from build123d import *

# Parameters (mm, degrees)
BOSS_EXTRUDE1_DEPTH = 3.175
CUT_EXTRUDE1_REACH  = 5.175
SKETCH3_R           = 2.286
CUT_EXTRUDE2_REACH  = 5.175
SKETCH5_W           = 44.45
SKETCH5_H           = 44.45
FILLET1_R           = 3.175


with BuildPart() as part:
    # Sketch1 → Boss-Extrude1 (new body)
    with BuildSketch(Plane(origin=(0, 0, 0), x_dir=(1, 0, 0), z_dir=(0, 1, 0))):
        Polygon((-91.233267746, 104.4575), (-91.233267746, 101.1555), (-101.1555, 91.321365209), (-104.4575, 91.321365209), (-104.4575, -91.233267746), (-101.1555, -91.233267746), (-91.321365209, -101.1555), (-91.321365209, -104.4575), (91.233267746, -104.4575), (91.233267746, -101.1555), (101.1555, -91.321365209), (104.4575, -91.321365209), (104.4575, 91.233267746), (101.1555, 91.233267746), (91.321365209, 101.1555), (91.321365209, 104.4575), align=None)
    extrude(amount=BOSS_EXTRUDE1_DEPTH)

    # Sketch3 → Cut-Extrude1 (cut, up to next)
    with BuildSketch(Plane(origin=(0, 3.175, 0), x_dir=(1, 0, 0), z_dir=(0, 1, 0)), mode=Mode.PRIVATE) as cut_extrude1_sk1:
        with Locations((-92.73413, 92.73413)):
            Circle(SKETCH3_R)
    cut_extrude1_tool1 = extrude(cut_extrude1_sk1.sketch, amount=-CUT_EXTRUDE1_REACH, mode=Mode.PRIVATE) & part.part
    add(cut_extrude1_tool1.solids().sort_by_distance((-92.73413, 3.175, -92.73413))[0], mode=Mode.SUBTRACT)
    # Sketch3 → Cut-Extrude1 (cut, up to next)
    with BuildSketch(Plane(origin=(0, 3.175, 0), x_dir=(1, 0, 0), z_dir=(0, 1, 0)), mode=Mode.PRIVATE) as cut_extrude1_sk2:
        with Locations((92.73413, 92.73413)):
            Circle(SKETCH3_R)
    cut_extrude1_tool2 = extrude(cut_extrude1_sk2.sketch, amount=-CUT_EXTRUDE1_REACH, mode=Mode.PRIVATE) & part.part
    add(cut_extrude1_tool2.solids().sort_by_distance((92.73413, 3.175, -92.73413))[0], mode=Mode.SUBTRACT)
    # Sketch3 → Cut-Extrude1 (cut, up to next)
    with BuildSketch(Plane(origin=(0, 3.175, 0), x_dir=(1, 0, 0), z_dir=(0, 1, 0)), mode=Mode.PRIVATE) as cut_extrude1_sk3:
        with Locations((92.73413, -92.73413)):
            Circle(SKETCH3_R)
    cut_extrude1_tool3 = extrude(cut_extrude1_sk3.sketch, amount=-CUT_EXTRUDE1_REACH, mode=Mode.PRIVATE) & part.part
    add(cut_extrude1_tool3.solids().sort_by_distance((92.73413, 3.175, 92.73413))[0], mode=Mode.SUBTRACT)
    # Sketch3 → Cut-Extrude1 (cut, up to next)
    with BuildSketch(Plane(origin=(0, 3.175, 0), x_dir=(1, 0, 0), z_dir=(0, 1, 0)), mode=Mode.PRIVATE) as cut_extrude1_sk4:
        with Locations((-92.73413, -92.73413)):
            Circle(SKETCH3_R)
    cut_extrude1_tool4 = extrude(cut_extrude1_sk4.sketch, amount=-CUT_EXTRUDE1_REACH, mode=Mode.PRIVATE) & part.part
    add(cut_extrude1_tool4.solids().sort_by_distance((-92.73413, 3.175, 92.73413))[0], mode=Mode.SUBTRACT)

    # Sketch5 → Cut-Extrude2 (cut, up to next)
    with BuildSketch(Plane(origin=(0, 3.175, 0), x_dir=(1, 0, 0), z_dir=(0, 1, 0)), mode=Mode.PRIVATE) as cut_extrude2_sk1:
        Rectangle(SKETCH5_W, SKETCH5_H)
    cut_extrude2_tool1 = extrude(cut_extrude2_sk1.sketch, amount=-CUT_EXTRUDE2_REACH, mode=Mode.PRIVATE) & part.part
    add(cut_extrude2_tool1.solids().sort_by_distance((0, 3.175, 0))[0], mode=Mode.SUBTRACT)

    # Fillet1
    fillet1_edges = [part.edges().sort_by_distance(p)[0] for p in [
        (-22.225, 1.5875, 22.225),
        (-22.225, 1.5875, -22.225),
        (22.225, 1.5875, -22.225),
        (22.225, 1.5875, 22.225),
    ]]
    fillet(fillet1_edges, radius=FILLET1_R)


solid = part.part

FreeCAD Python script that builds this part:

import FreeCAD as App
import Part
import Sketcher
from FreeCAD import Vector
Q = App.Units.Quantity


def edges_at(feature, points):
    """Names of the edges that pass closest to the given points."""
    edges = feature.Shape.Edges
    near = lambda p: min(range(len(edges)), key=lambda i: edges[i].distToShape(Part.Vertex(*p))[0])
    return sorted({f"Edge{near(p) + 1}" for p in points})


def add_polygon(sketch, points):
    """Adds a closed chain of lines whose ends are joined by coincident constraints."""
    first, n = sketch.GeometryCount, len(points)
    for a, b in zip(points, points[1:] + points[:1]):
        sketch.addGeometry(Part.LineSegment(App.Vector(*a, 0), App.Vector(*b, 0)), False)
    for i in range(n):
        sketch.addConstraint(Sketcher.Constraint("Coincident", first + i, 2, first + (i + 1) % n, 1))

doc = App.newDocument("Part")
body = doc.addObject("PartDesign::Body", "Body")

# Sketch on XZ plane
sketch1 = doc.addObject("Sketcher::SketchObject", "Sketch")
body.addObject(sketch1)
sketch1.AttachmentSupport = (doc.XZ_Plane, [""])
sketch1.MapMode = "FlatFace"
add_polygon(sketch1, [(-91.2, -104.5), (-91.2, -101.2), (-101.2, -91.3), (-104.5, -91.3), (-104.5, 91.2), (-101.2, 91.2), (-91.3, 101.2), (-91.3, 104.5), (91.2, 104.5), (91.2, 101.2), (101.2, 91.3), (104.5, 91.3), (104.5, -91.2), (101.2, -91.2), (91.3, -101.2), (91.3, -104.5)])  # lines 0-15
sketch1.addConstraint([
    Sketcher.Constraint("Vertical", 0),
    Sketcher.Constraint("Horizontal", 2),
    Sketcher.Constraint("Vertical", 3),
    Sketcher.Constraint("Horizontal", 4),
    Sketcher.Constraint("Vertical", 6),
    Sketcher.Constraint("Horizontal", 7),
    Sketcher.Constraint("Vertical", 8),
    Sketcher.Constraint("Horizontal", 10),
    Sketcher.Constraint("Vertical", 11),
    Sketcher.Constraint("Horizontal", 12),
    Sketcher.Constraint("Vertical", 14),
    Sketcher.Constraint("Horizontal", 15),
    Sketcher.Constraint("Symmetric", 0, 2, 8, 2, -1, 1),
    Sketcher.Constraint("Symmetric", 1, 2, 9, 2, -1, 1),
    Sketcher.Constraint("Symmetric", 3, 2, 11, 2, -1, 1),
    Sketcher.Constraint("Symmetric", 5, 2, 13, 2, -1, 1),
    Sketcher.Constraint("Perpendicular", 1, 5),
    Sketcher.Constraint("Perpendicular", 9, 13),
    Sketcher.Constraint("Horizontal", 5, 2, 8, 2),
    Sketcher.Constraint("Vertical", 1, 2, 4, 2),
    Sketcher.Constraint("Equal", 12, 0),
    Sketcher.Constraint("Equal", 15, 3),
    Sketcher.Constraint("Equal", 0, 6),
    Sketcher.Constraint("Equal", 1, 5),
    Sketcher.Constraint("DistanceX", 2, 2, 2, 1, Q("0.13 in")),
    Sketcher.Constraint("Distance", 1, Q("0.55 in")),
    Sketcher.Constraint("DistanceY", 0, 2, 5, 2, Q("7.965 in")),
    Sketcher.Constraint("DistanceX", 0, 2, -1, 1, Q("91.233268 mm")),
])
pad1 = doc.addObject("PartDesign::Pad", "Pad")
body.addObject(pad1)
pad1.Profile = sketch1
pad1.Length = Q("0.125 in")
pad1.Reversed = True

# Sketch on XZ plane
sketch2 = doc.addObject("Sketcher::SketchObject", "Sketch001")
body.addObject(sketch2)
sketch2.AttachmentSupport = (doc.XZ_Plane, [""])
sketch2.MapMode = "FlatFace"
sketch2.AttachmentOffset = App.Placement(Vector(0, 0, -0.125 * 25.4), App.Rotation())
sketch2.addGeometry(Part.Circle(Vector(-92.7, -92.7, 0), Vector(0, 0, 1), 2.3), False)
sketch2.addConstraint([
    Sketcher.Constraint("Diameter", 0, Q("0.18 in")),
    Sketcher.Constraint("DistanceX", 0, 3, -1, 1, Q("92.73413 mm")),
    Sketcher.Constraint("DistanceY", 0, 3, -1, 1, Q("92.73413 mm")),
])
pocket1 = doc.addObject("PartDesign::Pocket", "Pocket")
body.addObject(pocket1)
pocket1.Profile = sketch2
pocket1.Type = "UpToFirst"
pocket1.Reversed = True

# Sketch on XZ plane
sketch3 = doc.addObject("Sketcher::SketchObject", "Sketch002")
body.addObject(sketch3)
sketch3.AttachmentSupport = (doc.XZ_Plane, [""])
sketch3.MapMode = "FlatFace"
sketch3.AttachmentOffset = App.Placement(Vector(0, 0, -0.125 * 25.4), App.Rotation())
sketch3.addGeometry(Part.Circle(Vector(92.7, -92.7, 0), Vector(0, 0, 1), 2.3), False)
sketch3.addConstraint([
    Sketcher.Constraint("Diameter", 0, Q("0.18 in")),
    Sketcher.Constraint("DistanceX", -1, 1, 0, 3, Q("92.73413 mm")),
    Sketcher.Constraint("DistanceY", 0, 3, -1, 1, Q("92.73413 mm")),
])
pocket2 = doc.addObject("PartDesign::Pocket", "Pocket001")
body.addObject(pocket2)
pocket2.Profile = sketch3
pocket2.Type = "UpToFirst"
pocket2.Reversed = True

# Sketch on XZ plane
sketch4 = doc.addObject("Sketcher::SketchObject", "Sketch003")
body.addObject(sketch4)
sketch4.AttachmentSupport = (doc.XZ_Plane, [""])
sketch4.MapMode = "FlatFace"
sketch4.AttachmentOffset = App.Placement(Vector(0, 0, -0.125 * 25.4), App.Rotation())
sketch4.addGeometry(Part.Circle(Vector(92.7, 92.7, 0), Vector(0, 0, 1), 2.3), False)
sketch4.addConstraint([
    Sketcher.Constraint("Diameter", 0, Q("0.18 in")),
    Sketcher.Constraint("DistanceX", -1, 1, 0, 3, Q("92.73413 mm")),
    Sketcher.Constraint("DistanceY", -1, 1, 0, 3, Q("92.73413 mm")),
])
pocket3 = doc.addObject("PartDesign::Pocket", "Pocket002")
body.addObject(pocket3)
pocket3.Profile = sketch4
pocket3.Type = "UpToFirst"
pocket3.Reversed = True

# Sketch on XZ plane
sketch5 = doc.addObject("Sketcher::SketchObject", "Sketch004")
body.addObject(sketch5)
sketch5.AttachmentSupport = (doc.XZ_Plane, [""])
sketch5.MapMode = "FlatFace"
sketch5.AttachmentOffset = App.Placement(Vector(0, 0, -0.125 * 25.4), App.Rotation())
sketch5.addGeometry(Part.Circle(Vector(-92.7, 92.7, 0), Vector(0, 0, 1), 2.3), False)
sketch5.addConstraint([
    Sketcher.Constraint("Diameter", 0, Q("0.18 in")),
    Sketcher.Constraint("DistanceX", 0, 3, -1, 1, Q("92.73413 mm")),
    Sketcher.Constraint("DistanceY", -1, 1, 0, 3, Q("92.73413 mm")),
])
pocket4 = doc.addObject("PartDesign::Pocket", "Pocket003")
body.addObject(pocket4)
pocket4.Profile = sketch5
pocket4.Type = "UpToFirst"
pocket4.Reversed = True

# Sketch on XZ plane
sketch6 = doc.addObject("Sketcher::SketchObject", "Sketch005")
body.addObject(sketch6)
sketch6.AttachmentSupport = (doc.XZ_Plane, [""])
sketch6.MapMode = "FlatFace"
sketch6.AttachmentOffset = App.Placement(Vector(0, 0, -0.125 * 25.4), App.Rotation())
add_polygon(sketch6, [(-22, -22), (-22, 22), (22, 22), (22, -22)])  # lines 0-3
sketch6.addConstraint([
    Sketcher.Constraint("Vertical", 0),
    Sketcher.Constraint("Horizontal", 1),
    Sketcher.Constraint("Vertical", 2),
    Sketcher.Constraint("Horizontal", 3),
    Sketcher.Constraint("Symmetric", 0, 2, 2, 2, -1, 1),
    Sketcher.Constraint("Equal", 3, 0),
    Sketcher.Constraint("DistanceX", 1, 1, 1, 2, Q("1.75 in")),
])
pocket5 = doc.addObject("PartDesign::Pocket", "Pocket004")
body.addObject(pocket5)
pocket5.Profile = sketch6
pocket5.Type = "UpToFirst"
pocket5.Reversed = True
doc.recompute()

fillet = doc.addObject("PartDesign::Fillet", "Fillet")
body.addObject(fillet)
fillet.Base = (pocket5, edges_at(pocket5, [
    (-22.225, 1.587, 22.225),
    (-22.225, 1.587, -22.225),
    (22.225, 1.587, -22.225),
    (22.225, 1.587, 22.225),
]))
fillet.Radius = Q("0.125 in")

doc.recompute()
